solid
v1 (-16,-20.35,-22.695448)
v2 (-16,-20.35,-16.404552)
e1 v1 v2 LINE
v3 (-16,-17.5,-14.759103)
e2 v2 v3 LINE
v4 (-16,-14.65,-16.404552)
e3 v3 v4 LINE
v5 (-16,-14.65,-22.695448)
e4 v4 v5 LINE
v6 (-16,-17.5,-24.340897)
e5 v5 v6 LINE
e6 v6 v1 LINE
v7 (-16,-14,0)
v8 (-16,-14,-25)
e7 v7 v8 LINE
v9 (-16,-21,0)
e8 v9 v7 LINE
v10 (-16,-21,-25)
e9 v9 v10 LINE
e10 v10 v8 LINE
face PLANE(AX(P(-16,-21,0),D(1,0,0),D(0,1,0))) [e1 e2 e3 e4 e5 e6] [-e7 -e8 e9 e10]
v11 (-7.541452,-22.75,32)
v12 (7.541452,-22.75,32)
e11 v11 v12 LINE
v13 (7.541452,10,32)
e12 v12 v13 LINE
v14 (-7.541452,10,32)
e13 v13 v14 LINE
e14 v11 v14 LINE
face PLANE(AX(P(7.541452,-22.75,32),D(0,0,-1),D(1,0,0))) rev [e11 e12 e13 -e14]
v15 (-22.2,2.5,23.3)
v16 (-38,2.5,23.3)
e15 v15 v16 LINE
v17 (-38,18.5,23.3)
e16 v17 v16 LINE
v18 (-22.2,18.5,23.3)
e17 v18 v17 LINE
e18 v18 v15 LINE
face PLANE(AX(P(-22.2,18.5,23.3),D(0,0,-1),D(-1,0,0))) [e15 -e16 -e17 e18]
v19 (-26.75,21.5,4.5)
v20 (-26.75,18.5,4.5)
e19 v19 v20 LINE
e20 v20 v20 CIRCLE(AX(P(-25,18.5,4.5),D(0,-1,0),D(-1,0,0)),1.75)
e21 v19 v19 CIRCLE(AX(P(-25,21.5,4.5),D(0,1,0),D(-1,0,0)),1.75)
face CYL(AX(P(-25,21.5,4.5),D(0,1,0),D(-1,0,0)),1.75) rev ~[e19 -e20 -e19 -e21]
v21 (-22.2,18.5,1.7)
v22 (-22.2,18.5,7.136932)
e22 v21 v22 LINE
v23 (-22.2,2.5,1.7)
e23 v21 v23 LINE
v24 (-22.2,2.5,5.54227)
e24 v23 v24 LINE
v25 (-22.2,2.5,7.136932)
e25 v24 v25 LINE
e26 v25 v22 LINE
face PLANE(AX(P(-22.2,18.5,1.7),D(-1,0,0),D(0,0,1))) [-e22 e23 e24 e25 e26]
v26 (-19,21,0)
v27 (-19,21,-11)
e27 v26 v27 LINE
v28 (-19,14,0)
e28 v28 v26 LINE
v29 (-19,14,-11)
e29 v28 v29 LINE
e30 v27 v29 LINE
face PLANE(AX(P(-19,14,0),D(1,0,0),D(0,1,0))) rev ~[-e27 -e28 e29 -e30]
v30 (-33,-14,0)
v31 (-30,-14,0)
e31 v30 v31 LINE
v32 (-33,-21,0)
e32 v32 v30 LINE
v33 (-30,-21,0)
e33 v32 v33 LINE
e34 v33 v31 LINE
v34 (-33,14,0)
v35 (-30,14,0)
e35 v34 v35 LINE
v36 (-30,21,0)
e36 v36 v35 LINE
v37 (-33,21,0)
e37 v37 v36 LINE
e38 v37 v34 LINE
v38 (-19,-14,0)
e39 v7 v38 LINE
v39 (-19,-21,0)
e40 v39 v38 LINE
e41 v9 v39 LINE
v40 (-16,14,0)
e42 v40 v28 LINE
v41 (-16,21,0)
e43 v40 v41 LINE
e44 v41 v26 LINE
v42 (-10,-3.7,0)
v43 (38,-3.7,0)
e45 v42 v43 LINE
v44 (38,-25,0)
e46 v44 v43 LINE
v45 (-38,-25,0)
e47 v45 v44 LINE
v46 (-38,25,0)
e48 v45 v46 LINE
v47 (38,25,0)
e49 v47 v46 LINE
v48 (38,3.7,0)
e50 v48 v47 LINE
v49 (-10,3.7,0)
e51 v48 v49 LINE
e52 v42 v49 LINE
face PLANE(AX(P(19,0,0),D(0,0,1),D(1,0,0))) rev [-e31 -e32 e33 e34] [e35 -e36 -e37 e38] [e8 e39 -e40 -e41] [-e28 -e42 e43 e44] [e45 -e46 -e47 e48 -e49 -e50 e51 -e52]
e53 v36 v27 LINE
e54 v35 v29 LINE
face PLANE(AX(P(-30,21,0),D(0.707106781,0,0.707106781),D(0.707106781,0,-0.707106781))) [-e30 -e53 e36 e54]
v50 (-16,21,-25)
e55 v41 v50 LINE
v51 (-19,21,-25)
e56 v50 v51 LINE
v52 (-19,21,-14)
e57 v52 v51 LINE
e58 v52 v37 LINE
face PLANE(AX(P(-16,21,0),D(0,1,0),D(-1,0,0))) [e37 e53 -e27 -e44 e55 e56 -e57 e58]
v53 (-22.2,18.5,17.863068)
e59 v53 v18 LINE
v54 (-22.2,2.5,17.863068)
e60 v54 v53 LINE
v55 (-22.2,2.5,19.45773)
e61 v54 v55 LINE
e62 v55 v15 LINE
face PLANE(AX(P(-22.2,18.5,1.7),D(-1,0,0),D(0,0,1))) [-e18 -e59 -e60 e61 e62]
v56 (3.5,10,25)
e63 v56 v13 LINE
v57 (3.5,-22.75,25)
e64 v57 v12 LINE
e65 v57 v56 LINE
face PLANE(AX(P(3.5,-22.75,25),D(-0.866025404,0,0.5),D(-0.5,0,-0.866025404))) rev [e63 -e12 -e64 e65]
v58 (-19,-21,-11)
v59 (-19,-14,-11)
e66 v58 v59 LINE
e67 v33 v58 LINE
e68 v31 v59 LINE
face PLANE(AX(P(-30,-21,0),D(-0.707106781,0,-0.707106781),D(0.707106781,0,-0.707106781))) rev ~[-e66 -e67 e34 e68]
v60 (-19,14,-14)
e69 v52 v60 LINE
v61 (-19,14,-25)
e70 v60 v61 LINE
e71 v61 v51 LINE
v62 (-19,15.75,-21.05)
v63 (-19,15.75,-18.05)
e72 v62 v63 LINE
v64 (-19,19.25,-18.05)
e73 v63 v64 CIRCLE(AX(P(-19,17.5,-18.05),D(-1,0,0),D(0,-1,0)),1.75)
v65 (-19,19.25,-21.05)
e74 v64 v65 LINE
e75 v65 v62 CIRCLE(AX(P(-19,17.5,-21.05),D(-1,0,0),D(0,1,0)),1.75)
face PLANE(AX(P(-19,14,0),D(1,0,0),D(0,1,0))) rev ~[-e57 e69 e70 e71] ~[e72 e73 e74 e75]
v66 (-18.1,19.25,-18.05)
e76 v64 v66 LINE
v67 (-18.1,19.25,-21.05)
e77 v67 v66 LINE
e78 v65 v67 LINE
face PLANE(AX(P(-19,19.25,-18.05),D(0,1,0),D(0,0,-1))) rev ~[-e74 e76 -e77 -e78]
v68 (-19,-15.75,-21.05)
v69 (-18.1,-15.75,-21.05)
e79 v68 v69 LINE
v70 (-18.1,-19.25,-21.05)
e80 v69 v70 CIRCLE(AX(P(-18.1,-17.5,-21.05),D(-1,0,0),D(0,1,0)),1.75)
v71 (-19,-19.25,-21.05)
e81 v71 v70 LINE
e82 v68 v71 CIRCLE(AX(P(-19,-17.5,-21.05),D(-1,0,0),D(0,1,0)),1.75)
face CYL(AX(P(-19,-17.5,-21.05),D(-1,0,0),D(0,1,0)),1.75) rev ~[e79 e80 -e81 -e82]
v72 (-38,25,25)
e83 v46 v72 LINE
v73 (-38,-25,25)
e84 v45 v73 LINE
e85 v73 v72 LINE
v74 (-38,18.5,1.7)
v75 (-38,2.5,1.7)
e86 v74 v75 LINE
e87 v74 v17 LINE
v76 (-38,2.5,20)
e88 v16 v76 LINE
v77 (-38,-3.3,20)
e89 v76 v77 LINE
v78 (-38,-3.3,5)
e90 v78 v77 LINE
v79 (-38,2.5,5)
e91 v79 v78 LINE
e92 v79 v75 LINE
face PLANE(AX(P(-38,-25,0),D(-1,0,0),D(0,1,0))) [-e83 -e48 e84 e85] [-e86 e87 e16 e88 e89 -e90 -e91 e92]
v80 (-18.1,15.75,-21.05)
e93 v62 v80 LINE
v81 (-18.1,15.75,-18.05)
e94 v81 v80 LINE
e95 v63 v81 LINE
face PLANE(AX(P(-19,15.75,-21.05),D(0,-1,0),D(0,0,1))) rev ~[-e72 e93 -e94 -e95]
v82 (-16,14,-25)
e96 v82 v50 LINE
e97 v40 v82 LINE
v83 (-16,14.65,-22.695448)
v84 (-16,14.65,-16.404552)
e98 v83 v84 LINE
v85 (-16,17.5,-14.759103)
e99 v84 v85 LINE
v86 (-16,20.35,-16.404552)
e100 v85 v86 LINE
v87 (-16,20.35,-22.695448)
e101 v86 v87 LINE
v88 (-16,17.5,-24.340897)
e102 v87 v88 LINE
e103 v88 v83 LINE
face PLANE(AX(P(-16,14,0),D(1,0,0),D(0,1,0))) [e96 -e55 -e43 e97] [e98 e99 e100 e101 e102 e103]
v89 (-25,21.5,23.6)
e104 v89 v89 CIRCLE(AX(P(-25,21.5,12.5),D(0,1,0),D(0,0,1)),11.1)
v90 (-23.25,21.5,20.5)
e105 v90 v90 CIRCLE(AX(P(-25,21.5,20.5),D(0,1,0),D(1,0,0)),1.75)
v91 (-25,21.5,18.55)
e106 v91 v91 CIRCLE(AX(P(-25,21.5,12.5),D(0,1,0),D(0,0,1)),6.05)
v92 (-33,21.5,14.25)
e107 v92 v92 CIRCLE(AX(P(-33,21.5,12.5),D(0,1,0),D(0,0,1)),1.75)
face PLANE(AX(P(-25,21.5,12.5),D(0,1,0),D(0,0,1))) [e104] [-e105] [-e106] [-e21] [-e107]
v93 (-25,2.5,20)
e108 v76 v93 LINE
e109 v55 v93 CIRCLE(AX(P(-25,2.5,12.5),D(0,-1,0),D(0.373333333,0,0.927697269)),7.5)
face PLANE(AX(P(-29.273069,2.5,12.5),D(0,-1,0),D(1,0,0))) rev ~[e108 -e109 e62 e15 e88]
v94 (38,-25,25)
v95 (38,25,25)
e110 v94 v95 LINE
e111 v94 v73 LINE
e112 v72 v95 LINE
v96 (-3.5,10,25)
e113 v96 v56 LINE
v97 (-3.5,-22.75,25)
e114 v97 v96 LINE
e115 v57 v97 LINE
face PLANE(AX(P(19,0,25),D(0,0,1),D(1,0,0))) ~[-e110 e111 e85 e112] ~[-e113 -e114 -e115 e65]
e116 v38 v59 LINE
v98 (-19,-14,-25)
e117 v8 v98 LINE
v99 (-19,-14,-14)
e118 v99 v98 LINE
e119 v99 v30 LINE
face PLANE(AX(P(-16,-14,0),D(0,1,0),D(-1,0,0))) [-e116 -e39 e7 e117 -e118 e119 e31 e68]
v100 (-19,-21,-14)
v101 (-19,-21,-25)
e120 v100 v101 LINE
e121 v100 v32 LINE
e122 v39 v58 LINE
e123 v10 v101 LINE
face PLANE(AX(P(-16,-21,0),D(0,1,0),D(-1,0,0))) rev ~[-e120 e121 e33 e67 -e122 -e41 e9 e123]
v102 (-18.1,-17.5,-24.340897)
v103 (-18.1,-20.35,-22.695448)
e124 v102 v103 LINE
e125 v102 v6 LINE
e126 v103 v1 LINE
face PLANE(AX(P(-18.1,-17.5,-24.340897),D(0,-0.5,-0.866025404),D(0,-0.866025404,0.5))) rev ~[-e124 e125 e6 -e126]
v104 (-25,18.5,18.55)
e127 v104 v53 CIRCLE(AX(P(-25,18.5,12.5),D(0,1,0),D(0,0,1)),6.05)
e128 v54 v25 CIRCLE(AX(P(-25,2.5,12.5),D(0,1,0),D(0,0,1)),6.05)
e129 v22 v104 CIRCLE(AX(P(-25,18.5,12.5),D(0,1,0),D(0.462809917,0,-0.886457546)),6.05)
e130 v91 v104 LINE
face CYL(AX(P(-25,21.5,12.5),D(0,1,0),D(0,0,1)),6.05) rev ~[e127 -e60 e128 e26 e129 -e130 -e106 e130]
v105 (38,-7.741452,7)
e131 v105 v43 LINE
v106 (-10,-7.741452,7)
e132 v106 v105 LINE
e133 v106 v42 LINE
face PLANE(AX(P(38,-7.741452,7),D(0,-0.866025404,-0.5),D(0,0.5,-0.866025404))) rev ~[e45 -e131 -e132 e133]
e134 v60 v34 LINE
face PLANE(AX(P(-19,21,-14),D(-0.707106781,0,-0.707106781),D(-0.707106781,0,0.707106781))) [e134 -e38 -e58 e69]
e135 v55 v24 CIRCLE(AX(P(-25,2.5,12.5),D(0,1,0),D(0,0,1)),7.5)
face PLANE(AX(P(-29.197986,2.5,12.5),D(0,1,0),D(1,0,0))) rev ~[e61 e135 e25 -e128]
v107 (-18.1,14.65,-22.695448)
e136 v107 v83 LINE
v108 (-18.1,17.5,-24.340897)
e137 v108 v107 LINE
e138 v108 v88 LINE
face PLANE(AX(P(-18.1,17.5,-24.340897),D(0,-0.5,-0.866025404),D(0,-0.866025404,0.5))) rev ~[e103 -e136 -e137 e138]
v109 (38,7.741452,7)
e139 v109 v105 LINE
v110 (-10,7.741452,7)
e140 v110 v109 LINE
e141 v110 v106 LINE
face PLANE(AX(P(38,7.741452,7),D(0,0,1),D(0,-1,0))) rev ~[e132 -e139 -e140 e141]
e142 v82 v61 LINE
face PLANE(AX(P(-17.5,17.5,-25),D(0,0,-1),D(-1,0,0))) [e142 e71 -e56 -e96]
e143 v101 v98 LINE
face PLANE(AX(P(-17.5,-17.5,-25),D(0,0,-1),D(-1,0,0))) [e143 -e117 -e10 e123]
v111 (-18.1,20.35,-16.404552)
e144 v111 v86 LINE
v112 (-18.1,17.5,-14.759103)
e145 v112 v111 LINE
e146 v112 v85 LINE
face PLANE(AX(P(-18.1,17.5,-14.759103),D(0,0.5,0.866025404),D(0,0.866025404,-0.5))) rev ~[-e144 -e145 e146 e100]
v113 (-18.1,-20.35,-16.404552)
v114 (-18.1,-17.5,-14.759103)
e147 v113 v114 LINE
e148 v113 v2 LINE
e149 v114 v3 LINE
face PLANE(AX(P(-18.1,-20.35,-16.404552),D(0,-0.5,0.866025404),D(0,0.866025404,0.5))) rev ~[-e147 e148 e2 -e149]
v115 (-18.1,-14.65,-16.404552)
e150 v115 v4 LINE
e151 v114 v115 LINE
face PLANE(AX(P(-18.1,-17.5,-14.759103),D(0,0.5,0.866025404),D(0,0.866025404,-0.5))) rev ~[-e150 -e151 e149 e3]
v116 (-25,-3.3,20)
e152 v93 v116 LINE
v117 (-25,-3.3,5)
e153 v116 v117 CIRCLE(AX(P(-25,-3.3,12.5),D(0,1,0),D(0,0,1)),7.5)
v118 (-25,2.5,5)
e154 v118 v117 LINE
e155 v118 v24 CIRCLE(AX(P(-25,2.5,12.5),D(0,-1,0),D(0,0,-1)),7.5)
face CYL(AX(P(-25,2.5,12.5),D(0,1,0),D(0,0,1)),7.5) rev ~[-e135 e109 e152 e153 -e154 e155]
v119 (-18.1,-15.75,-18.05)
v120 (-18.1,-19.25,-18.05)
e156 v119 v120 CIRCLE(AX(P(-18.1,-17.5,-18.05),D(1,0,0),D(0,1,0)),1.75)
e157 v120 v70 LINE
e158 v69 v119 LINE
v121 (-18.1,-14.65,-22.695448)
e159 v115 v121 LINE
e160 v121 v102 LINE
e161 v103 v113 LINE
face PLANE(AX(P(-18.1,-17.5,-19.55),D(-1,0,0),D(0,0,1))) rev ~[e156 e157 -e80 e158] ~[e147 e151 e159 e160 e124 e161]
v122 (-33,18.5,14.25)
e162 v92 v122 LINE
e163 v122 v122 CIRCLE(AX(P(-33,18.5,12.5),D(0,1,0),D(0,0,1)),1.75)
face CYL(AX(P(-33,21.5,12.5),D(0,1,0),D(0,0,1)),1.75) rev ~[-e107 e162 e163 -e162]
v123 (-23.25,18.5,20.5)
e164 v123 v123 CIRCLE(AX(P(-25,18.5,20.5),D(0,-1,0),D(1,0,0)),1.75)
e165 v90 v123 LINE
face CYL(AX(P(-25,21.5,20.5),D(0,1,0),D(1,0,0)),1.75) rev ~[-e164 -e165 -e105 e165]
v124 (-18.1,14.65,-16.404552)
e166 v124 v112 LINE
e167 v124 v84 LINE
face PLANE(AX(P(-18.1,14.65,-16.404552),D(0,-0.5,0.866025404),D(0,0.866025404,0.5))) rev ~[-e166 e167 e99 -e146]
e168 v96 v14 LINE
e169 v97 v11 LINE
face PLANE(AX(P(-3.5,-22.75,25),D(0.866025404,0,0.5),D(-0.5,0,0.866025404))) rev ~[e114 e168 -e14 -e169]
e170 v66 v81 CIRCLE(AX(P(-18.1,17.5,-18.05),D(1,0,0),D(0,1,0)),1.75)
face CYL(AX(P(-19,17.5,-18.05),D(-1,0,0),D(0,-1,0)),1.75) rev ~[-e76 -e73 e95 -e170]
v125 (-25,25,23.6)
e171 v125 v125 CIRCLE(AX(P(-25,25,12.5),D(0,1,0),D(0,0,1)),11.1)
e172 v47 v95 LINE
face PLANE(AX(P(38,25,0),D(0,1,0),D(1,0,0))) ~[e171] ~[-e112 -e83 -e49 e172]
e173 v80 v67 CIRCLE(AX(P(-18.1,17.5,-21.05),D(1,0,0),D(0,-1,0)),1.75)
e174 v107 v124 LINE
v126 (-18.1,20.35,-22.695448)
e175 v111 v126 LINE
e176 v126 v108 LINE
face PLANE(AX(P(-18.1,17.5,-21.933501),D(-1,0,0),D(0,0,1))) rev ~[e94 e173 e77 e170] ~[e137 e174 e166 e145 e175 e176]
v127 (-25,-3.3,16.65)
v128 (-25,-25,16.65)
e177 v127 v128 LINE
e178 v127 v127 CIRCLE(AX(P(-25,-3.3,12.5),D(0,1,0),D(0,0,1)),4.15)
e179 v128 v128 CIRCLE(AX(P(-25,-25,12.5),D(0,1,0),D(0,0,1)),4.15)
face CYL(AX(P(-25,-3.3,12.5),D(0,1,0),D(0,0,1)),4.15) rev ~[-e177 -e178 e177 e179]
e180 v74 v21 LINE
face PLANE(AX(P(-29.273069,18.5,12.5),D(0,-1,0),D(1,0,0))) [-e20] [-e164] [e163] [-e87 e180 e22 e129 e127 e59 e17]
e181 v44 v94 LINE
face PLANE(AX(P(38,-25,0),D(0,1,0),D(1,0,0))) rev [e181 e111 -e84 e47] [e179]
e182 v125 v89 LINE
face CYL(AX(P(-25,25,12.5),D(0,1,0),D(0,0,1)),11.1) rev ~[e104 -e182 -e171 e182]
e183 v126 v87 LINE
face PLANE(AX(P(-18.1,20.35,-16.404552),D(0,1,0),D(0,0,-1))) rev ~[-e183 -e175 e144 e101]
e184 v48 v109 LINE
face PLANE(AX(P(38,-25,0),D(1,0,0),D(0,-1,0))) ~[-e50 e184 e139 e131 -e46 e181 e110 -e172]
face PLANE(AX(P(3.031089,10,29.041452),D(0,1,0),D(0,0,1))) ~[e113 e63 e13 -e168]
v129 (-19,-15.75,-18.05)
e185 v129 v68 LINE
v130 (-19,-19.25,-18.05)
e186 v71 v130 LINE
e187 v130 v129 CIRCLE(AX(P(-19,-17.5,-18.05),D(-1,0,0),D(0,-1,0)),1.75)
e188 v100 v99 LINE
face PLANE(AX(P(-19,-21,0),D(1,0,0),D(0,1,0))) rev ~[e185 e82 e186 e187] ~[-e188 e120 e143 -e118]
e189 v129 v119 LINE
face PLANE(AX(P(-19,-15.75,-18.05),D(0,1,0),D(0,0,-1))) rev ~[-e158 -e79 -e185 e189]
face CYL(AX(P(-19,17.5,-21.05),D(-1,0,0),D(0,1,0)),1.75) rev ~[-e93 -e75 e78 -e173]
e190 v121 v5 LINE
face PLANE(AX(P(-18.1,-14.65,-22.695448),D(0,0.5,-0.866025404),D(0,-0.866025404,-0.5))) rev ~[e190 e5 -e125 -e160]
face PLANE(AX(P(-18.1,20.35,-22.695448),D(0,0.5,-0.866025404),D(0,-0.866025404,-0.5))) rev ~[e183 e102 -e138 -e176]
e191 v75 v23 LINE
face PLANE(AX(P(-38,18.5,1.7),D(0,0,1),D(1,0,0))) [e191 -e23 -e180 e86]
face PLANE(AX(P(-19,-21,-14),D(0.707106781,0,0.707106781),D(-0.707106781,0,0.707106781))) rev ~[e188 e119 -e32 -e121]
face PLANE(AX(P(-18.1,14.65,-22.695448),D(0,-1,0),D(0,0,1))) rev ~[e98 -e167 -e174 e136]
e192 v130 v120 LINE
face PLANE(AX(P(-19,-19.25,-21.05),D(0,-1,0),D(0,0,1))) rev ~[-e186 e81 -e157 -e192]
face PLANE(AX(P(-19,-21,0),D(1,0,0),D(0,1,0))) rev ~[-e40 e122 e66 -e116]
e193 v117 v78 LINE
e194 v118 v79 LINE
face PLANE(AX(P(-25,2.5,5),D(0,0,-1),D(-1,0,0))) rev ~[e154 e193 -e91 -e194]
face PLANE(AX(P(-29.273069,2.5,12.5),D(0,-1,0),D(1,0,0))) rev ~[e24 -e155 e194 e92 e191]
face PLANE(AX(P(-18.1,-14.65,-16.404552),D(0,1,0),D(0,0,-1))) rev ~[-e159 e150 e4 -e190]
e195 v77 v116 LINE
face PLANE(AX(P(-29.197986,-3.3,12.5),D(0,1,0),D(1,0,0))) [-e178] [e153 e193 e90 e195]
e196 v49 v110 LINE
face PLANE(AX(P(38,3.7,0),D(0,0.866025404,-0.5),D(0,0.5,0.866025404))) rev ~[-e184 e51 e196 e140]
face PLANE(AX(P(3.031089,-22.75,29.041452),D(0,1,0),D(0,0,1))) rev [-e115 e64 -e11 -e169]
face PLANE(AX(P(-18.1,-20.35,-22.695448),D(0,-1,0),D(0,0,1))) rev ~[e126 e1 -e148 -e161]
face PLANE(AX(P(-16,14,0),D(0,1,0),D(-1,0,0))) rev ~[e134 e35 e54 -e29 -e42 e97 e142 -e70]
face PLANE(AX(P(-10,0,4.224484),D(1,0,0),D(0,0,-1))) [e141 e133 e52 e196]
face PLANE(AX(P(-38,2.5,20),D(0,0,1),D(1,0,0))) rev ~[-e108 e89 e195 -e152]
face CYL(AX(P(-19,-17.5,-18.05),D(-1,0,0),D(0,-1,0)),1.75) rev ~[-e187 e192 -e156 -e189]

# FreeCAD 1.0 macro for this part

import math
import FreeCAD as App
import Part
import Sketcher
Q = App.Units.Quantity


def add_polygon(sketch, points):
    """Adds a closed chain of lines whose ends are joined by coincident constraints."""
    first, n = sketch.GeometryCount, len(points)
    for a, b in zip(points, points[1:] + points[:1]):
        sketch.addGeometry(Part.LineSegment(App.Vector(*a, 0), App.Vector(*b, 0)), False)
    for i in range(n):
        sketch.addConstraint(Sketcher.Constraint("Coincident", first + i, 2, first + (i + 1) % n, 1))

doc = App.newDocument("Part")
params = doc.addObject("Spreadsheet::Sheet", "Params")
for row, (alias, value) in enumerate([
    ("sketch1_width", "38 mm"),
    ("sketch1_height", "50 mm"),
    ("pad1_length", "25 mm"),
    ("sketch2_height", "7 mm"),
    ("sketch2_width", "3.5 mm"),
    ("pad2_length", "32.75 mm"),
    ("sketch3_width", "7.4 mm"),
    ("pocket1_length", "10 mm"),
    ("sketch4_width", "7.4 mm"),
    ("sketch5_width", "7.4 mm"),
    ("pocket3_length", "87.16844 mm"),
    ("sketch6_diameter", "22.2 mm"),
    ("pocket4_length", "3.5 mm"),
    ("sketch7_diameter", "12.1 mm"),
    ("pocket5_length", "19 mm"),
    ("sketch8_radius", "7.5 mm"),
    ("sketch8_width", "13 mm"),
    ("pocket6_length", "5.8 mm"),
    ("sketch9_width", "13 mm"),
    ("sketch9_radius", "6.05 mm"),
    ("pocket7_length", "16 mm"),
    ("sketch10_diameter", "3.5 mm"),
    ("pocket8_length", "19 mm"),
    ("sketch11_diameter", "8.3 mm"),
    ("sketch12_diameter", "3.5 mm"),
    ("sketch12_width", "13 mm"),
    ("sketch12_radius", "6.05 mm"),
    ("sketch12_width2", "15.8 mm"),
    ("sketch12_height", "21.6 mm"),
    ("pocket10_length", "16 mm"),
    ("sketch13_width", "3 mm"),
    ("sketch13_height", "7 mm"),
    ("pad3_length", "25 mm"),
    ("sketch14_height", "3 mm"),
    ("sketch14_radius", "1.75 mm"),
    ("pocket11_length", "10 mm"),
    ("sketch15_height", "3 mm"),
    ("sketch15_radius", "1.75 mm"),
    ("pocket12_length", "2.1 mm"),
    ("sketch16_width", "3 mm"),
    ("pad4_length", "7 mm"),
    ("sketch17_width", "3 mm"),
    ("pad5_length", "7 mm"),
], start=1):
    params.set(f"A{row}", alias)
    params.set(f"B{row}", "=" + value)
    params.setAlias(f"B{row}", alias)

body = doc.addObject("PartDesign::Body", "Body")

sketch1 = doc.addObject("Sketcher::SketchObject", "Sketch")
body.addObject(sketch1)
sketch1.AttachmentSupport = (doc.XY_Plane, [""])
sketch1.MapMode = "FlatFace"
add_polygon(sketch1, [(-38, 25), (-38, -25), (0, -25), (0, 25)])
sketch1.addConstraint(Sketcher.Constraint("Vertical", 0))
sketch1.addConstraint(Sketcher.Constraint("Horizontal", 1))
sketch1.addConstraint(Sketcher.Constraint("Vertical", 2))
sketch1.addConstraint(Sketcher.Constraint("Horizontal", 3))
sketch1.addConstraint(Sketcher.Constraint("Symmetric", 1, 2, 2, 2, -1, 1))
sketch1.addConstraint(Sketcher.Constraint("DistanceX", 1, 1, 1, 2, Q("38 mm")))
sketch1.addConstraint(Sketcher.Constraint("DistanceY", 0, 2, 0, 1, Q("50 mm")))
sketch1.setExpression("Constraints[9]", "Params.sketch1_width")
sketch1.setExpression("Constraints[10]", "Params.sketch1_height")
pad1 = doc.addObject("PartDesign::Pad", "Pad")
body.addObject(pad1)
pad1.Profile = sketch1
pad1.setExpression("Length", "Params.pad1_length")

sketch2 = doc.addObject("Sketcher::SketchObject", "Sketch001")
body.addObject(sketch2)
sketch2.AttachmentSupport = (doc.XZ_Plane, [""])
sketch2.MapMode = "FlatFace"
sketch2.AttachmentOffset = App.Placement(App.Vector(0, 0, 22.75), App.Rotation())
add_polygon(sketch2, [(0, 25), (-3.5, 25), (-7.541452, 32), (0, 32)])
sketch2.addConstraint(Sketcher.Constraint("Horizontal", 0))
sketch2.addConstraint(Sketcher.Constraint("Horizontal", 2))
sketch2.addConstraint(Sketcher.Constraint("Vertical", 3))
sketch2.addConstraint(Sketcher.Constraint("PointOnObject", 2, 2, -2))
sketch2.addConstraint(Sketcher.Constraint("DistanceY", 3, 2, 3, 1, Q("7 mm")))
sketch2.addConstraint(Sketcher.Constraint("Angle", 1, Q("120 deg")))
sketch2.addConstraint(Sketcher.Constraint("DistanceX", 0, 2, 0, 1, Q("3.5 mm")))
sketch2.addConstraint(Sketcher.Constraint("DistanceY", -1, 1, 0, 2, Q("25 mm")))
sketch2.setExpression("Constraints[8]", "Params.sketch2_height")
sketch2.setExpression("Constraints[10]", "Params.sketch2_width")
pad2 = doc.addObject("PartDesign::Pad", "Pad001")
body.addObject(pad2)
pad2.Profile = sketch2
pad2.setExpression("Length", "Params.pad2_length")
pad2.Reversed = True

sketch3 = doc.addObject("Sketcher::SketchObject", "Sketch002")
body.addObject(sketch3)
sketch3.AttachmentSupport = (doc.YZ_Plane, [""])
sketch3.MapMode = "FlatFace"
add_polygon(sketch3, [(-3.7, 0), (3.7, 0), (7.741452, 7), (-7.741452, 7)])
sketch3.addConstraint(Sketcher.Constraint("Horizontal", 0))
sketch3.addConstraint(Sketcher.Constraint("Horizontal", 2))
sketch3.addConstraint(Sketcher.Constraint("Symmetric", 0, 2, 3, 2, -1, 1))
sketch3.addConstraint(Sketcher.Constraint("Equal", 1, 3))
sketch3.addConstraint(Sketcher.Constraint("Angle", 1, Q("60 deg")))
sketch3.addConstraint(Sketcher.Constraint("DistanceX", 0, 1, 0, 2, Q("7.4 mm")))
sketch3.addConstraint(Sketcher.Constraint("DistanceY", -1, 1, 1, 2, Q("7 mm")))
sketch3.setExpression("Constraints[9]", "Params.sketch3_width")
pocket1 = doc.addObject("PartDesign::Pocket", "Pocket")
body.addObject(pocket1)
pocket1.Profile = sketch3
pocket1.setExpression("Length", "Params.pocket1_length")
doc.recompute()

mirrored = doc.addObject("PartDesign::Mirrored", "Mirrored")
body.addObject(mirrored)
mirrored.Originals = [pad1, pad2, pocket1]
mirrored.MirrorPlane = (doc.YZ_Plane, [""])
body.Tip = mirrored

sketch4 = doc.addObject("Sketcher::SketchObject", "Sketch003")
body.addObject(sketch4)
sketch4.AttachmentSupport = (doc.YZ_Plane, [""])
sketch4.MapMode = "FlatFace"
sketch4.AttachmentOffset = App.Placement(App.Vector(0, 0, 38), App.Rotation())
add_polygon(sketch4, [(-3.7, 0), (3.7, 0), (7.741452, 7), (-7.741452, 7)])
sketch4.addConstraint(Sketcher.Constraint("Horizontal", 0))
sketch4.addConstraint(Sketcher.Constraint("Horizontal", 2))
sketch4.addConstraint(Sketcher.Constraint("Symmetric", 0, 2, 3, 2, -1, 1))
sketch4.addConstraint(Sketcher.Constraint("Equal", 1, 3))
sketch4.addConstraint(Sketcher.Constraint("Angle", 1, Q("60 deg")))
sketch4.addConstraint(Sketcher.Constraint("DistanceX", 0, 1, 0, 2, Q("7.4 mm")))
sketch4.addConstraint(Sketcher.Constraint("DistanceY", -1, 1, 1, 2, Q("7 mm")))
sketch4.setExpression("Constraints[9]", "Params.sketch4_width")
pocket2 = doc.addObject("PartDesign::Pocket", "Pocket001")
body.addObject(pocket2)
pocket2.Profile = sketch4
pocket2.Type = "UpToFirst"

sketch5 = doc.addObject("Sketcher::SketchObject", "Sketch004")
body.addObject(sketch5)
sketch5.AttachmentSupport = (doc.YZ_Plane, [""])
sketch5.MapMode = "FlatFace"
sketch5.AttachmentOffset = App.Placement(App.Vector(0, 0, 38), App.Rotation())
add_polygon(sketch5, [(-3.7, 0), (3.7, 0), (7.741452, 7), (-7.741452, 7)])
sketch5.addConstraint(Sketcher.Constraint("Horizontal", 0))
sketch5.addConstraint(Sketcher.Constraint("Horizontal", 2))
sketch5.addConstraint(Sketcher.Constraint("Symmetric", 0, 2, 3, 2, -1, 1))
sketch5.addConstraint(Sketcher.Constraint("Equal", 1, 3))
sketch5.addConstraint(Sketcher.Constraint("Angle", 1, Q("60 deg")))
sketch5.addConstraint(Sketcher.Constraint("DistanceX", 0, 1, 0, 2, Q("7.4 mm")))
sketch5.addConstraint(Sketcher.Constraint("DistanceY", -1, 1, 1, 2, Q("7 mm")))
sketch5.setExpression("Constraints[9]", "Params.sketch5_width")
pocket3 = doc.addObject("PartDesign::Pocket", "Pocket002")
body.addObject(pocket3)
pocket3.Profile = sketch5
pocket3.setExpression("Length", "Params.pocket3_length")
pocket3.Reversed = True

sketch6 = doc.addObject("Sketcher::SketchObject", "Sketch005")
body.addObject(sketch6)
sketch6.AttachmentSupport = (doc.XZ_Plane, [""])
sketch6.MapMode = "FlatFace"
sketch6.AttachmentOffset = App.Placement(App.Vector(0, 0, -25), App.Rotation())
sketch6.addGeometry(Part.Circle(App.Vector(-25, 12.5, 0), App.Vector(0, 0, 1), 11.1), False)
sketch6.addConstraint(Sketcher.Constraint("Diameter", 0, Q("22.2 mm")))
sketch6.addConstraint(Sketcher.Constraint("DistanceX", 0, 3, -1, 1, Q("25 mm")))
sketch6.addConstraint(Sketcher.Constraint("DistanceY", -1, 1, 0, 3, Q("12.5 mm")))
sketch6.setExpression("Constraints[0]", "Params.sketch6_diameter")
pocket4 = doc.addObject("PartDesign::Pocket", "Pocket003")
body.addObject(pocket4)
pocket4.Profile = sketch6
pocket4.setExpression("Length", "Params.pocket4_length")
pocket4.Reversed = True

sketch7 = doc.addObject("Sketcher::SketchObject", "Sketch006")
body.addObject(sketch7)
sketch7.AttachmentSupport = (doc.XZ_Plane, [""])
sketch7.MapMode = "FlatFace"
sketch7.AttachmentOffset = App.Placement(App.Vector(0, 0, -21.5), App.Rotation())
sketch7.addGeometry(Part.Circle(App.Vector(-25, 12.5, 0), App.Vector(0, 0, 1), 6.05), False)
sketch7.addConstraint(Sketcher.Constraint("Diameter", 0, Q("12.1 mm")))
sketch7.addConstraint(Sketcher.Constraint("DistanceX", 0, 3, -1, 1, Q("25 mm")))
sketch7.addConstraint(Sketcher.Constraint("DistanceY", -1, 1, 0, 3, Q("12.5 mm")))
sketch7.setExpression("Constraints[0]", "Params.sketch7_diameter")
pocket5 = doc.addObject("PartDesign::Pocket", "Pocket004")
body.addObject(pocket5)
pocket5.Profile = sketch7
pocket5.setExpression("Length", "Params.pocket5_length")
pocket5.Reversed = True

sketch8 = doc.addObject("Sketcher::SketchObject", "Sketch007")
body.addObject(sketch8)
sketch8.AttachmentSupport = (doc.XZ_Plane, [""])
sketch8.MapMode = "FlatFace"
sketch8.AttachmentOffset = App.Placement(App.Vector(0, 0, -2.5), App.Rotation())
sketch8.addGeometry(Part.ArcOfCircle(Part.Circle(App.Vector(-25, 12.5, 0), App.Vector(0, 0, 1), 7.5), math.radians(-90), math.radians(90)), False)
sketch8.addGeometry(Part.LineSegment(App.Vector(-25, 5, 0), App.Vector(-38, 5, 0)), False)
sketch8.addGeometry(Part.LineSegment(App.Vector(-38, 5, 0), App.Vector(-38, 20, 0)), False)
sketch8.addGeometry(Part.LineSegment(App.Vector(-38, 20, 0), App.Vector(-25, 20, 0)), False)
sketch8.addConstraint(Sketcher.Constraint("Tangent", 0, 1, 1, 1))
sketch8.addConstraint(Sketcher.Constraint("Coincident", 1, 2, 2, 1))
sketch8.addConstraint(Sketcher.Constraint("Coincident", 2, 2, 3, 1))
sketch8.addConstraint(Sketcher.Constraint("Tangent", 3, 2, 0, 2))
sketch8.addConstraint(Sketcher.Constraint("Horizontal", 1))
sketch8.addConstraint(Sketcher.Constraint("Vertical", 2))
sketch8.addConstraint(Sketcher.Constraint("Horizontal", 3))
sketch8.addConstraint(Sketcher.Constraint("Radius", 0, Q("7.5 mm")))
sketch8.addConstraint(Sketcher.Constraint("DistanceX", 1, 2, 1, 1, Q("13 mm")))
sketch8.addConstraint(Sketcher.Constraint("DistanceX", 0, 3, -1, 1, Q("25 mm")))
sketch8.addConstraint(Sketcher.Constraint("DistanceY", -1, 1, 0, 1, Q("5 mm")))
sketch8.setExpression("Constraints[7]", "Params.sketch8_radius")
sketch8.setExpression("Constraints[8]", "Params.sketch8_width")
pocket6 = doc.addObject("PartDesign::Pocket", "Pocket005")
body.addObject(pocket6)
pocket6.Profile = sketch8
pocket6.setExpression("Length", "Params.pocket6_length")
pocket6.Reversed = True

sketch9 = doc.addObject("Sketcher::SketchObject", "Sketch008")
body.addObject(sketch9)
sketch9.AttachmentSupport = (doc.XZ_Plane, [""])
sketch9.MapMode = "FlatFace"
sketch9.AttachmentOffset = App.Placement(App.Vector(0, 0, -18.5), App.Rotation())
sketch9.addGeometry(Part.LineSegment(App.Vector(-25, 18.55, 0), App.Vector(-38, 18.55, 0)), False)
sketch9.addGeometry(Part.LineSegment(App.Vector(-38, 18.55, 0), App.Vector(-38, 6.45, 0)), False)
sketch9.addGeometry(Part.LineSegment(App.Vector(-38, 6.45, 0), App.Vector(-25, 6.45, 0)), False)
sketch9.addGeometry(Part.ArcOfCircle(Part.Circle(App.Vector(-25, 12.5, 0), App.Vector(0, 0, 1), 6.05), math.radians(-90), math.radians(90)), False)
sketch9.addConstraint(Sketcher.Constraint("Coincident", 0, 2, 1, 1))
sketch9.addConstraint(Sketcher.Constraint("Coincident", 1, 2, 2, 1))
sketch9.addConstraint(Sketcher.Constraint("Tangent", 2, 2, 3, 1))
sketch9.addConstraint(Sketcher.Constraint("Tangent", 3, 2, 0, 1))
sketch9.addConstraint(Sketcher.Constraint("Horizontal", 0))
sketch9.addConstraint(Sketcher.Constraint("Vertical", 1))
sketch9.addConstraint(Sketcher.Constraint("Horizontal", 2))
sketch9.addConstraint(Sketcher.Constraint("DistanceX", 0, 2, 0, 1, Q("13 mm")))
sketch9.addConstraint(Sketcher.Constraint("Radius", 3, Q("6.05 mm")))
sketch9.addConstraint(Sketcher.Constraint("DistanceX", 3, 3, -1, 1, Q("25 mm")))
sketch9.addConstraint(Sketcher.Constraint("DistanceY", -1, 1, 3, 3, Q("12.5 mm")))
sketch9.setExpression("Constraints[7]", "Params.sketch9_width")
sketch9.setExpression("Constraints[8]", "Params.sketch9_radius")
pocket7 = doc.addObject("PartDesign::Pocket", "Pocket006")
body.addObject(pocket7)
pocket7.Profile = sketch9
pocket7.setExpression("Length", "Params.pocket7_length")
pocket7.Reversed = True

sketch10 = doc.addObject("Sketcher::SketchObject", "Sketch009")
body.addObject(sketch10)
sketch10.AttachmentSupport = (doc.XZ_Plane, [""])
sketch10.MapMode = "FlatFace"
sketch10.AttachmentOffset = App.Placement(App.Vector(0, 0, -21.5), App.Rotation())
sketch10.addGeometry(Part.Circle(App.Vector(-33, 12.5, 0), App.Vector(0, 0, 1), 1.75), False)
sketch10.addConstraint(Sketcher.Constraint("Diameter", 0, Q("3.5 mm")))
sketch10.addConstraint(Sketcher.Constraint("DistanceX", 0, 3, -1, 1, Q("33 mm")))
sketch10.addConstraint(Sketcher.Constraint("DistanceY", -1, 1, 0, 3, Q("12.5 mm")))
sketch10.setExpression("Constraints[0]", "Params.sketch10_diameter")
pocket8 = doc.addObject("PartDesign::Pocket", "Pocket007")
body.addObject(pocket8)
pocket8.Profile = sketch10
pocket8.setExpression("Length", "Params.pocket8_length")
pocket8.Reversed = True
doc.recompute()

datumline = doc.addObject("PartDesign::Line", "DatumLine")
body.addObject(datumline)
datumline.Placement = App.Placement(App.Vector(-25, 0, 12.5), App.Rotation(App.Vector(0, 0, 1), App.Vector(0, 1, 0)))
polarpattern = doc.addObject("PartDesign::PolarPattern", "PolarPattern")
body.addObject(polarpattern)
polarpattern.Originals = [pocket8]
polarpattern.Axis = (datumline, [""])
polarpattern.Angle = 90
polarpattern.Occurrences = 2
body.Tip = polarpattern
doc.recompute()

datumline2 = doc.addObject("PartDesign::Line", "DatumLine001")
body.addObject(datumline2)
datumline2.Placement = App.Placement(App.Vector(-25, 0, 12.5), App.Rotation(App.Vector(0, 0, 1), App.Vector(0, -1, 0)))
polarpattern2 = doc.addObject("PartDesign::PolarPattern", "PolarPattern001")
body.addObject(polarpattern2)
polarpattern2.Originals = [pocket8]
polarpattern2.Axis = (datumline2, [""])
polarpattern2.Angle = 90
polarpattern2.Occurrences = 2
body.Tip = polarpattern2

sketch11 = doc.addObject("Sketcher::SketchObject", "Sketch010")
body.addObject(sketch11)
sketch11.AttachmentSupport = (doc.XZ_Plane, [""])
sketch11.MapMode = "FlatFace"
sketch11.AttachmentOffset = App.Placement(App.Vector(0, 0, 3.3), App.Rotation())
sketch11.addGeometry(Part.Circle(App.Vector(-25, 12.5, 0), App.Vector(0, 0, 1), 4.15), False)
sketch11.addConstraint(Sketcher.Constraint("Diameter", 0, Q("8.3 mm")))
sketch11.addConstraint(Sketcher.Constraint("DistanceX", 0, 3, -1, 1, Q("25 mm")))
sketch11.addConstraint(Sketcher.Constraint("DistanceY", -1, 1, 0, 3, Q("12.5 mm")))
sketch11.setExpression("Constraints[0]", "Params.sketch11_diameter")
pocket9 = doc.addObject("PartDesign::Pocket", "Pocket008")
body.addObject(pocket9)
pocket9.Profile = sketch11
pocket9.Type = "ThroughAll"
pocket9.Reversed = True

sketch12 = doc.addObject("Sketcher::SketchObject", "Sketch011")
body.addObject(sketch12)
sketch12.AttachmentSupport = (doc.XZ_Plane, [""])
sketch12.MapMode = "FlatFace"
sketch12.AttachmentOffset = App.Placement(App.Vector(0, 0, -18.5), App.Rotation())
sketch12.addGeometry(Part.LineSegment(App.Vector(-38, 6.45, 0), App.Vector(-38, 1.7, 0)), False)
sketch12.addGeometry(Part.LineSegment(App.Vector(-38, 1.7, 0), App.Vector(-22.2, 1.7, 0)), False)
sketch12.addGeometry(Part.LineSegment(App.Vector(-22.2, 1.7, 0), App.Vector(-22.2, 23.3, 0)), False)
sketch12.addGeometry(Part.LineSegment(App.Vector(-22.2, 23.3, 0), App.Vector(-38, 23.3, 0)), False)
sketch12.addGeometry(Part.LineSegment(App.Vector(-38, 23.3, 0), App.Vector(-38, 18.55, 0)), False)
sketch12.addGeometry(Part.LineSegment(App.Vector(-38, 18.55, 0), App.Vector(-25, 18.55, 0)), False)
sketch12.addGeometry(Part.ArcOfCircle(Part.Circle(App.Vector(-25, 12.5, 0), App.Vector(0, 0, 1), 6.05), math.radians(90), math.radians(270)), False)
sketch12.addGeometry(Part.LineSegment(App.Vector(-25, 6.45, 0), App.Vector(-38, 6.45, 0)), False)
sketch12.addGeometry(Part.Circle(App.Vector(-25, 4.5, 0), App.Vector(0, 0, 1), 1.75), False)
sketch12.addGeometry(Part.Circle(App.Vector(-25, 20.5, 0), App.Vector(0, 0, 1), 1.75), False)
sketch12.addConstraint(Sketcher.Constraint("Coincident", 0, 2, 1, 1))
sketch12.addConstraint(Sketcher.Constraint("Coincident", 1, 2, 2, 1))
sketch12.addConstraint(Sketcher.Constraint("Coincident", 2, 2, 3, 1))
sketch12.addConstraint(Sketcher.Constraint("Coincident", 3, 2, 4, 1))
sketch12.addConstraint(Sketcher.Constraint("Coincident", 4, 2, 5, 1))
sketch12.addConstraint(Sketcher.Constraint("Tangent", 5, 2, 6, 1))
sketch12.addConstraint(Sketcher.Constraint("Tangent", 6, 2, 7, 1))
sketch12.addConstraint(Sketcher.Constraint("Coincident", 7, 2, 0, 1))
sketch12.addConstraint(Sketcher.Constraint("Vertical", 0))
sketch12.addConstraint(Sketcher.Constraint("Horizontal", 1))
sketch12.addConstraint(Sketcher.Constraint("Vertical", 2))
sketch12.addConstraint(Sketcher.Constraint("Horizontal", 3))
sketch12.addConstraint(Sketcher.Constraint("Vertical", 4))
sketch12.addConstraint(Sketcher.Constraint("Horizontal", 5))
sketch12.addConstraint(Sketcher.Constraint("Horizontal", 7))
sketch12.addConstraint(Sketcher.Constraint("Equal", 8, 9))
sketch12.addConstraint(Sketcher.Constraint("Vertical", 6, 3, 8, 3))
sketch12.addConstraint(Sketcher.Constraint("Vertical", 8, 3, 9, 3))
sketch12.addConstraint(Sketcher.Constraint("Vertical", 0, 2, 3, 2))
sketch12.addConstraint(Sketcher.Constraint("Equal", 0, 4))
sketch12.addConstraint(Sketcher.Constraint("Diameter", 8, Q("3.5 mm")))
sketch12.addConstraint(Sketcher.Constraint("DistanceX", 5, 1, 5, 2, Q("13 mm")))
sketch12.addConstraint(Sketcher.Constraint("Radius", 6, Q("6.05 mm")))
sketch12.addConstraint(Sketcher.Constraint("DistanceX", 1, 1, 1, 2, Q("15.8 mm")))
sketch12.addConstraint(Sketcher.Constraint("DistanceY", 2, 1, 2, 2, Q("21.6 mm")))
sketch12.addConstraint(Sketcher.Constraint("DistanceX", 6, 3, -1, 1, Q("25 mm")))
sketch12.addConstraint(Sketcher.Constraint("DistanceY", 8, 3, 6, 3, Q("8 mm")))
sketch12.addConstraint(Sketcher.Constraint("DistanceY", 6, 3, 9, 3, Q("8 mm")))
sketch12.addConstraint(Sketcher.Constraint("DistanceY", -1, 1, 6, 3, Q("12.5 mm")))
sketch12.setExpression("Constraints[20]", "Params.sketch12_diameter")
sketch12.setExpression("Constraints[21]", "Params.sketch12_width")
sketch12.setExpression("Constraints[22]", "Params.sketch12_radius")
sketch12.setExpression("Constraints[23]", "Params.sketch12_width2")
sketch12.setExpression("Constraints[24]", "Params.sketch12_height")
pocket10 = doc.addObject("PartDesign::Pocket", "Pocket009")
body.addObject(pocket10)
pocket10.Profile = sketch12
pocket10.setExpression("Length", "Params.pocket10_length")
pocket10.Reversed = True

sketch13 = doc.addObject("Sketcher::SketchObject", "Sketch012")
body.addObject(sketch13)
sketch13.AttachmentSupport = (doc.XY_Plane, [""])
sketch13.MapMode = "FlatFace"
add_polygon(sketch13, [(-16, 21), (-16, 14), (-19, 14), (-19, 21)])
add_polygon(sketch13, [(-16, -14), (-16, -21), (-19, -21), (-19, -14)])
sketch13.addConstraint(Sketcher.Constraint("Vertical", 0))
sketch13.addConstraint(Sketcher.Constraint("Horizontal", 1))
sketch13.addConstraint(Sketcher.Constraint("Vertical", 2))
sketch13.addConstraint(Sketcher.Constraint("Horizontal", 3))
sketch13.addConstraint(Sketcher.Constraint("Vertical", 4))
sketch13.addConstraint(Sketcher.Constraint("Horizontal", 5))
sketch13.addConstraint(Sketcher.Constraint("Vertical", 6))
sketch13.addConstraint(Sketcher.Constraint("Horizontal", 7))
sketch13.addConstraint(Sketcher.Constraint("Symmetric", 3, 2, 4, 2, -1))
sketch13.addConstraint(Sketcher.Constraint("Symmetric", 1, 2, 6, 2, -1))
sketch13.addConstraint(Sketcher.Constraint("DistanceX", 1, 2, 1, 1, Q("3 mm")))
sketch13.addConstraint(Sketcher.Constraint("DistanceY", 0, 2, 0, 1, Q("7 mm")))
sketch13.addConstraint(Sketcher.Constraint("DistanceX", 0, 2, -1, 1, Q("16 mm")))
sketch13.addConstraint(Sketcher.Constraint("DistanceY", -1, 1, 0, 2, Q("14 mm")))
sketch13.setExpression("Constraints[18]", "Params.sketch13_width")
sketch13.setExpression("Constraints[19]", "Params.sketch13_height")
pad3 = doc.addObject("PartDesign::Pad", "Pad002")
body.addObject(pad3)
pad3.Profile = sketch13
pad3.setExpression("Length", "Params.pad3_length")
pad3.Reversed = True

sketch14 = doc.addObject("Sketcher::SketchObject", "Sketch013")
body.addObject(sketch14)
sketch14.AttachmentSupport = (doc.YZ_Plane, [""])
sketch14.MapMode = "FlatFace"
sketch14.AttachmentOffset = App.Placement(App.Vector(0, 0, -19), App.Rotation())
sketch14.addGeometry(Part.LineSegment(App.Vector(19.25, -18.05, 0), App.Vector(19.25, -21.05, 0)), False)
sketch14.addGeometry(Part.ArcOfCircle(Part.Circle(App.Vector(17.5, -21.05, 0), App.Vector(0, 0, 1), 1.75), math.radians(180), math.radians(360)), False)
sketch14.addGeometry(Part.LineSegment(App.Vector(15.75, -21.05, 0), App.Vector(15.75, -18.05, 0)), False)
sketch14.addGeometry(Part.ArcOfCircle(Part.Circle(App.Vector(17.5, -18.05, 0), App.Vector(0, 0, 1), 1.75), math.radians(0), math.radians(180)), False)
sketch14.addGeometry(Part.LineSegment(App.Vector(-15.75, -18.05, 0), App.Vector(-15.75, -21.05, 0)), False)
sketch14.addGeometry(Part.ArcOfCircle(Part.Circle(App.Vector(-17.5, -21.05, 0), App.Vector(0, 0, 1), 1.75), math.radians(180), math.radians(360)), False)
sketch14.addGeometry(Part.LineSegment(App.Vector(-19.25, -21.05, 0), App.Vector(-19.25, -18.05, 0)), False)
sketch14.addGeometry(Part.ArcOfCircle(Part.Circle(App.Vector(-17.5, -18.05, 0), App.Vector(0, 0, 1), 1.75), math.radians(0), math.radians(180)), False)
sketch14.addConstraint(Sketcher.Constraint("Tangent", 0, 2, 1, 2))
sketch14.addConstraint(Sketcher.Constraint("Tangent", 1, 1, 2, 1))
sketch14.addConstraint(Sketcher.Constraint("Tangent", 2, 2, 3, 2))
sketch14.addConstraint(Sketcher.Constraint("Tangent", 3, 1, 0, 1))
sketch14.addConstraint(Sketcher.Constraint("Tangent", 4, 2, 5, 2))
sketch14.addConstraint(Sketcher.Constraint("Tangent", 5, 1, 6, 1))
sketch14.addConstraint(Sketcher.Constraint("Tangent", 6, 2, 7, 2))
sketch14.addConstraint(Sketcher.Constraint("Tangent", 7, 1, 4, 1))
sketch14.addConstraint(Sketcher.Constraint("Vertical", 0))
sketch14.addConstraint(Sketcher.Constraint("Vertical", 2))
sketch14.addConstraint(Sketcher.Constraint("Vertical", 4))
sketch14.addConstraint(Sketcher.Constraint("Vertical", 6))
sketch14.addConstraint(Sketcher.Constraint("Equal", 3, 5))
sketch14.addConstraint(Sketcher.Constraint("Symmetric", 1, 3, 5, 3, -2))
sketch14.addConstraint(Sketcher.Constraint("Horizontal", 3, 3, 7, 3))
sketch14.addConstraint(Sketcher.Constraint("DistanceY", 0, 2, 0, 1, Q("3 mm")))
sketch14.addConstraint(Sketcher.Constraint("Radius", 1, Q("1.75 mm")))
sketch14.addConstraint(Sketcher.Constraint("DistanceX", 5, 3, 1, 3, Q("35 mm")))
sketch14.addConstraint(Sketcher.Constraint("DistanceY", 1, 3, -1, 1, Q("21.05 mm")))
sketch14.setExpression("Constraints[15]", "Params.sketch14_height")
sketch14.setExpression("Constraints[16]", "Params.sketch14_radius")
pocket11 = doc.addObject("PartDesign::Pocket", "Pocket010")
body.addObject(pocket11)
pocket11.Profile = sketch14
pocket11.setExpression("Length", "Params.pocket11_length")
pocket11.Reversed = True

sketch15 = doc.addObject("Sketcher::SketchObject", "Sketch014")
body.addObject(sketch15)
sketch15.AttachmentSupport = (doc.YZ_Plane, [""])
sketch15.MapMode = "FlatFace"
sketch15.AttachmentOffset = App.Placement(App.Vector(0, 0, -18.1), App.Rotation())
add_polygon(sketch15, [(14.65, -16.404552), (17.5, -14.759103), (20.35, -16.404552), (20.35, -22.695448), (17.5, -24.340897), (14.65, -22.695448)])
sketch15.addGeometry(Part.LineSegment(App.Vector(19.25, -21.05, 0), App.Vector(19.25, -18.05, 0)), False)
sketch15.addGeometry(Part.ArcOfCircle(Part.Circle(App.Vector(17.5, -18.05, 0), App.Vector(0, 0, 1), 1.75), math.radians(0), math.radians(180)), False)
sketch15.addGeometry(Part.LineSegment(App.Vector(15.75, -18.05, 0), App.Vector(15.75, -21.05, 0)), False)
sketch15.addGeometry(Part.ArcOfCircle(Part.Circle(App.Vector(17.5, -21.05, 0), App.Vector(0, 0, 1), 1.75), math.radians(180), math.radians(360)), False)
add_polygon(sketch15, [(-14.65, -22.695448), (-17.5, -24.340897), (-20.35, -22.695448), (-20.35, -16.404552), (-17.5, -14.759103), (-14.65, -16.404552)])
sketch15.addGeometry(Part.LineSegment(App.Vector(-19.25, -18.769466, 0), App.Vector(-17.5, -17.759103, 0)), False)
sketch15.addGeometry(Part.LineSegment(App.Vector(-17.5, -17.759103, 0), App.Vector(-15.75, -18.769466, 0)), False)
sketch15.addGeometry(Part.LineSegment(App.Vector(-15.75, -18.769466, 0), App.Vector(-15.75, -18.05, 0)), False)
sketch15.addGeometry(Part.ArcOfCircle(Part.Circle(App.Vector(-17.5, -18.05, 0), App.Vector(0, 0, 1), 1.75), math.radians(0), math.radians(180)), False)
sketch15.addGeometry(Part.LineSegment(App.Vector(-19.25, -18.05, 0), App.Vector(-19.25, -18.769466, 0)), False)
sketch15.addConstraint(Sketcher.Constraint("Tangent", 6, 2, 7, 1))
sketch15.addConstraint(Sketcher.Constraint("Tangent", 7, 2, 8, 1))
sketch15.addConstraint(Sketcher.Constraint("Tangent", 8, 2, 9, 1))
sketch15.addConstraint(Sketcher.Constraint("Tangent", 9, 2, 6, 1))
sketch15.addConstraint(Sketcher.Constraint("Coincident", 16, 2, 17, 1))
sketch15.addConstraint(Sketcher.Constraint("Coincident", 17, 2, 18, 1))
sketch15.addConstraint(Sketcher.Constraint("Tangent", 18, 2, 19, 1))
sketch15.addConstraint(Sketcher.Constraint("Tangent", 19, 2, 20, 1))
sketch15.addConstraint(Sketcher.Constraint("Coincident", 20, 2, 16, 1))
sketch15.addConstraint(Sketcher.Constraint("Vertical", 2))
sketch15.addConstraint(Sketcher.Constraint("Vertical", 5))
sketch15.addConstraint(Sketcher.Constraint("Vertical", 6))
sketch15.addConstraint(Sketcher.Constraint("Vertical", 8))
sketch15.addConstraint(Sketcher.Constraint("Vertical", 12))
sketch15.addConstraint(Sketcher.Constraint("Vertical", 15))
sketch15.addConstraint(Sketcher.Constraint("Vertical", 18))
sketch15.addConstraint(Sketcher.Constraint("Vertical", 20))
sketch15.addConstraint(Sketcher.Constraint("Equal", 9, 19))
sketch15.addConstraint(Sketcher.Constraint("Symmetric", 7, 3, 19, 3, -2))
sketch15.addConstraint(Sketcher.Constraint("Symmetric", 3, 2, 10, 2, -2))
sketch15.addConstraint(Sketcher.Constraint("Symmetric", 2, 2, 11, 2, -2))
sketch15.addConstraint(Sketcher.Constraint("Symmetric", 0, 2, 13, 2, -2))
sketch15.addConstraint(Sketcher.Constraint("Symmetric", 5, 2, 14, 2, -2))
sketch15.addConstraint(Sketcher.Constraint("Parallel", 0, 3))
sketch15.addConstraint(Sketcher.Constraint("Parallel", 1, 4))
sketch15.addConstraint(Sketcher.Constraint("Parallel", 3, 10))
sketch15.addConstraint(Sketcher.Constraint("Parallel", 4, 11))
sketch15.addConstraint(Sketcher.Constraint("Parallel", 10, 13))
sketch15.addConstraint(Sketcher.Constraint("Parallel", 13, 16))
sketch15.addConstraint(Sketcher.Constraint("Parallel", 14, 17))
sketch15.addConstraint(Sketcher.Constraint("Horizontal", 2, 2, 4, 2))
sketch15.addConstraint(Sketcher.Constraint("Horizontal", 1, 2, 5, 2))
sketch15.addConstraint(Sketcher.Constraint("Horizontal", 17, 2, 20, 2))
sketch15.addConstraint(Sketcher.Constraint("Vertical", 9, 3, 0, 2))
sketch15.addConstraint(Sketcher.Constraint("DistanceY", 6, 1, 6, 2, Q("3 mm")))
sketch15.addConstraint(Sketcher.Constraint("Angle", 0, Q("30 deg")))
sketch15.addConstraint(Sketcher.Constraint("Radius", 7, Q("1.75 mm")))
sketch15.addConstraint(Sketcher.Constraint("DistanceX", 19, 3, 7, 3, Q("35 mm")))
sketch15.addConstraint(Sketcher.Constraint("DistanceY", 16, 2, 13, 2, Q("3 mm")))
sketch15.addConstraint(Sketcher.Constraint("DistanceX", 4, 2, 2, 2, Q("5.7 mm")))
sketch15.addConstraint(Sketcher.Constraint("DistanceY", 7, 3, -1, 1, Q("18.05 mm")))
sketch15.addConstraint(Sketcher.Constraint("DistanceY", 2, 2, 2, 1, Q("6.290897 mm")))
sketch15.addConstraint(Sketcher.Constraint("DistanceY", 18, 1, 18, 2, Q("0.719466 mm")))
sketch15.setExpression("Constraints[46]", "Params.sketch15_height")
sketch15.setExpression("Constraints[48]", "Params.sketch15_radius")
pocket12 = doc.addObject("PartDesign::Pocket", "Pocket011")
body.addObject(pocket12)
pocket12.Profile = sketch15
pocket12.setExpression("Length", "Params.pocket12_length")
pocket12.Reversed = True

sketch16 = doc.addObject("Sketcher::SketchObject", "Sketch015")
body.addObject(sketch16)
sketch16.AttachmentSupport = (doc.XZ_Plane, [""])
sketch16.MapMode = "FlatFace"
sketch16.AttachmentOffset = App.Placement(App.Vector(0, 0, 21), App.Rotation())
add_polygon(sketch16, [(-33, 0), (-19, -14), (-19, -11), (-30, 0)])
sketch16.addConstraint(Sketcher.Constraint("Vertical", 1))
sketch16.addConstraint(Sketcher.Constraint("Horizontal", 3))
sketch16.addConstraint(Sketcher.Constraint("PointOnObject", 2, 2, -1))
sketch16.addConstraint(Sketcher.Constraint("Parallel", 0, 2))
sketch16.addConstraint(Sketcher.Constraint("Equal", 3, 1))
sketch16.addConstraint(Sketcher.Constraint("DistanceX", 3, 2, 3, 1, Q("3 mm")))
sketch16.addConstraint(Sketcher.Constraint("DistanceX", 0, 2, -1, 1, Q("19 mm")))
sketch16.addConstraint(Sketcher.Constraint("DistanceY", 0, 2, -1, 1, Q("14 mm")))
sketch16.setExpression("Constraints[9]", "Params.sketch16_width")
pad4 = doc.addObject("PartDesign::Pad", "Pad003")
body.addObject(pad4)
pad4.Profile = sketch16
pad4.setExpression("Length", "Params.pad4_length")
pad4.Reversed = True

sketch17 = doc.addObject("Sketcher::SketchObject", "Sketch016")
body.addObject(sketch17)
sketch17.AttachmentSupport = (doc.XZ_Plane, [""])
sketch17.MapMode = "FlatFace"
sketch17.AttachmentOffset = App.Placement(App.Vector(0, 0, -21), App.Rotation())
add_polygon(sketch17, [(-33, 0), (-30, 0), (-19, -11), (-19, -14)])
sketch17.addConstraint(Sketcher.Constraint("Horizontal", 0))
sketch17.addConstraint(Sketcher.Constraint("Vertical", 2))
sketch17.addConstraint(Sketcher.Constraint("PointOnObject", 0, 2, -1))
sketch17.addConstraint(Sketcher.Constraint("Parallel", 1, 3))
sketch17.addConstraint(Sketcher.Constraint("Equal", 0, 2))
sketch17.addConstraint(Sketcher.Constraint("DistanceX", 0, 1, 0, 2, Q("3 mm")))
sketch17.addConstraint(Sketcher.Constraint("DistanceX", 0, 2, -1, 1, Q("30 mm")))
sketch17.addConstraint(Sketcher.Constraint("DistanceX", 1, 2, -1, 1, Q("19 mm")))
sketch17.setExpression("Constraints[9]", "Params.sketch17_width")
pad5 = doc.addObject("PartDesign::Pad", "Pad004")
body.addObject(pad5)
pad5.Profile = sketch17
pad5.setExpression("Length", "Params.pad5_length")

doc.recompute()
